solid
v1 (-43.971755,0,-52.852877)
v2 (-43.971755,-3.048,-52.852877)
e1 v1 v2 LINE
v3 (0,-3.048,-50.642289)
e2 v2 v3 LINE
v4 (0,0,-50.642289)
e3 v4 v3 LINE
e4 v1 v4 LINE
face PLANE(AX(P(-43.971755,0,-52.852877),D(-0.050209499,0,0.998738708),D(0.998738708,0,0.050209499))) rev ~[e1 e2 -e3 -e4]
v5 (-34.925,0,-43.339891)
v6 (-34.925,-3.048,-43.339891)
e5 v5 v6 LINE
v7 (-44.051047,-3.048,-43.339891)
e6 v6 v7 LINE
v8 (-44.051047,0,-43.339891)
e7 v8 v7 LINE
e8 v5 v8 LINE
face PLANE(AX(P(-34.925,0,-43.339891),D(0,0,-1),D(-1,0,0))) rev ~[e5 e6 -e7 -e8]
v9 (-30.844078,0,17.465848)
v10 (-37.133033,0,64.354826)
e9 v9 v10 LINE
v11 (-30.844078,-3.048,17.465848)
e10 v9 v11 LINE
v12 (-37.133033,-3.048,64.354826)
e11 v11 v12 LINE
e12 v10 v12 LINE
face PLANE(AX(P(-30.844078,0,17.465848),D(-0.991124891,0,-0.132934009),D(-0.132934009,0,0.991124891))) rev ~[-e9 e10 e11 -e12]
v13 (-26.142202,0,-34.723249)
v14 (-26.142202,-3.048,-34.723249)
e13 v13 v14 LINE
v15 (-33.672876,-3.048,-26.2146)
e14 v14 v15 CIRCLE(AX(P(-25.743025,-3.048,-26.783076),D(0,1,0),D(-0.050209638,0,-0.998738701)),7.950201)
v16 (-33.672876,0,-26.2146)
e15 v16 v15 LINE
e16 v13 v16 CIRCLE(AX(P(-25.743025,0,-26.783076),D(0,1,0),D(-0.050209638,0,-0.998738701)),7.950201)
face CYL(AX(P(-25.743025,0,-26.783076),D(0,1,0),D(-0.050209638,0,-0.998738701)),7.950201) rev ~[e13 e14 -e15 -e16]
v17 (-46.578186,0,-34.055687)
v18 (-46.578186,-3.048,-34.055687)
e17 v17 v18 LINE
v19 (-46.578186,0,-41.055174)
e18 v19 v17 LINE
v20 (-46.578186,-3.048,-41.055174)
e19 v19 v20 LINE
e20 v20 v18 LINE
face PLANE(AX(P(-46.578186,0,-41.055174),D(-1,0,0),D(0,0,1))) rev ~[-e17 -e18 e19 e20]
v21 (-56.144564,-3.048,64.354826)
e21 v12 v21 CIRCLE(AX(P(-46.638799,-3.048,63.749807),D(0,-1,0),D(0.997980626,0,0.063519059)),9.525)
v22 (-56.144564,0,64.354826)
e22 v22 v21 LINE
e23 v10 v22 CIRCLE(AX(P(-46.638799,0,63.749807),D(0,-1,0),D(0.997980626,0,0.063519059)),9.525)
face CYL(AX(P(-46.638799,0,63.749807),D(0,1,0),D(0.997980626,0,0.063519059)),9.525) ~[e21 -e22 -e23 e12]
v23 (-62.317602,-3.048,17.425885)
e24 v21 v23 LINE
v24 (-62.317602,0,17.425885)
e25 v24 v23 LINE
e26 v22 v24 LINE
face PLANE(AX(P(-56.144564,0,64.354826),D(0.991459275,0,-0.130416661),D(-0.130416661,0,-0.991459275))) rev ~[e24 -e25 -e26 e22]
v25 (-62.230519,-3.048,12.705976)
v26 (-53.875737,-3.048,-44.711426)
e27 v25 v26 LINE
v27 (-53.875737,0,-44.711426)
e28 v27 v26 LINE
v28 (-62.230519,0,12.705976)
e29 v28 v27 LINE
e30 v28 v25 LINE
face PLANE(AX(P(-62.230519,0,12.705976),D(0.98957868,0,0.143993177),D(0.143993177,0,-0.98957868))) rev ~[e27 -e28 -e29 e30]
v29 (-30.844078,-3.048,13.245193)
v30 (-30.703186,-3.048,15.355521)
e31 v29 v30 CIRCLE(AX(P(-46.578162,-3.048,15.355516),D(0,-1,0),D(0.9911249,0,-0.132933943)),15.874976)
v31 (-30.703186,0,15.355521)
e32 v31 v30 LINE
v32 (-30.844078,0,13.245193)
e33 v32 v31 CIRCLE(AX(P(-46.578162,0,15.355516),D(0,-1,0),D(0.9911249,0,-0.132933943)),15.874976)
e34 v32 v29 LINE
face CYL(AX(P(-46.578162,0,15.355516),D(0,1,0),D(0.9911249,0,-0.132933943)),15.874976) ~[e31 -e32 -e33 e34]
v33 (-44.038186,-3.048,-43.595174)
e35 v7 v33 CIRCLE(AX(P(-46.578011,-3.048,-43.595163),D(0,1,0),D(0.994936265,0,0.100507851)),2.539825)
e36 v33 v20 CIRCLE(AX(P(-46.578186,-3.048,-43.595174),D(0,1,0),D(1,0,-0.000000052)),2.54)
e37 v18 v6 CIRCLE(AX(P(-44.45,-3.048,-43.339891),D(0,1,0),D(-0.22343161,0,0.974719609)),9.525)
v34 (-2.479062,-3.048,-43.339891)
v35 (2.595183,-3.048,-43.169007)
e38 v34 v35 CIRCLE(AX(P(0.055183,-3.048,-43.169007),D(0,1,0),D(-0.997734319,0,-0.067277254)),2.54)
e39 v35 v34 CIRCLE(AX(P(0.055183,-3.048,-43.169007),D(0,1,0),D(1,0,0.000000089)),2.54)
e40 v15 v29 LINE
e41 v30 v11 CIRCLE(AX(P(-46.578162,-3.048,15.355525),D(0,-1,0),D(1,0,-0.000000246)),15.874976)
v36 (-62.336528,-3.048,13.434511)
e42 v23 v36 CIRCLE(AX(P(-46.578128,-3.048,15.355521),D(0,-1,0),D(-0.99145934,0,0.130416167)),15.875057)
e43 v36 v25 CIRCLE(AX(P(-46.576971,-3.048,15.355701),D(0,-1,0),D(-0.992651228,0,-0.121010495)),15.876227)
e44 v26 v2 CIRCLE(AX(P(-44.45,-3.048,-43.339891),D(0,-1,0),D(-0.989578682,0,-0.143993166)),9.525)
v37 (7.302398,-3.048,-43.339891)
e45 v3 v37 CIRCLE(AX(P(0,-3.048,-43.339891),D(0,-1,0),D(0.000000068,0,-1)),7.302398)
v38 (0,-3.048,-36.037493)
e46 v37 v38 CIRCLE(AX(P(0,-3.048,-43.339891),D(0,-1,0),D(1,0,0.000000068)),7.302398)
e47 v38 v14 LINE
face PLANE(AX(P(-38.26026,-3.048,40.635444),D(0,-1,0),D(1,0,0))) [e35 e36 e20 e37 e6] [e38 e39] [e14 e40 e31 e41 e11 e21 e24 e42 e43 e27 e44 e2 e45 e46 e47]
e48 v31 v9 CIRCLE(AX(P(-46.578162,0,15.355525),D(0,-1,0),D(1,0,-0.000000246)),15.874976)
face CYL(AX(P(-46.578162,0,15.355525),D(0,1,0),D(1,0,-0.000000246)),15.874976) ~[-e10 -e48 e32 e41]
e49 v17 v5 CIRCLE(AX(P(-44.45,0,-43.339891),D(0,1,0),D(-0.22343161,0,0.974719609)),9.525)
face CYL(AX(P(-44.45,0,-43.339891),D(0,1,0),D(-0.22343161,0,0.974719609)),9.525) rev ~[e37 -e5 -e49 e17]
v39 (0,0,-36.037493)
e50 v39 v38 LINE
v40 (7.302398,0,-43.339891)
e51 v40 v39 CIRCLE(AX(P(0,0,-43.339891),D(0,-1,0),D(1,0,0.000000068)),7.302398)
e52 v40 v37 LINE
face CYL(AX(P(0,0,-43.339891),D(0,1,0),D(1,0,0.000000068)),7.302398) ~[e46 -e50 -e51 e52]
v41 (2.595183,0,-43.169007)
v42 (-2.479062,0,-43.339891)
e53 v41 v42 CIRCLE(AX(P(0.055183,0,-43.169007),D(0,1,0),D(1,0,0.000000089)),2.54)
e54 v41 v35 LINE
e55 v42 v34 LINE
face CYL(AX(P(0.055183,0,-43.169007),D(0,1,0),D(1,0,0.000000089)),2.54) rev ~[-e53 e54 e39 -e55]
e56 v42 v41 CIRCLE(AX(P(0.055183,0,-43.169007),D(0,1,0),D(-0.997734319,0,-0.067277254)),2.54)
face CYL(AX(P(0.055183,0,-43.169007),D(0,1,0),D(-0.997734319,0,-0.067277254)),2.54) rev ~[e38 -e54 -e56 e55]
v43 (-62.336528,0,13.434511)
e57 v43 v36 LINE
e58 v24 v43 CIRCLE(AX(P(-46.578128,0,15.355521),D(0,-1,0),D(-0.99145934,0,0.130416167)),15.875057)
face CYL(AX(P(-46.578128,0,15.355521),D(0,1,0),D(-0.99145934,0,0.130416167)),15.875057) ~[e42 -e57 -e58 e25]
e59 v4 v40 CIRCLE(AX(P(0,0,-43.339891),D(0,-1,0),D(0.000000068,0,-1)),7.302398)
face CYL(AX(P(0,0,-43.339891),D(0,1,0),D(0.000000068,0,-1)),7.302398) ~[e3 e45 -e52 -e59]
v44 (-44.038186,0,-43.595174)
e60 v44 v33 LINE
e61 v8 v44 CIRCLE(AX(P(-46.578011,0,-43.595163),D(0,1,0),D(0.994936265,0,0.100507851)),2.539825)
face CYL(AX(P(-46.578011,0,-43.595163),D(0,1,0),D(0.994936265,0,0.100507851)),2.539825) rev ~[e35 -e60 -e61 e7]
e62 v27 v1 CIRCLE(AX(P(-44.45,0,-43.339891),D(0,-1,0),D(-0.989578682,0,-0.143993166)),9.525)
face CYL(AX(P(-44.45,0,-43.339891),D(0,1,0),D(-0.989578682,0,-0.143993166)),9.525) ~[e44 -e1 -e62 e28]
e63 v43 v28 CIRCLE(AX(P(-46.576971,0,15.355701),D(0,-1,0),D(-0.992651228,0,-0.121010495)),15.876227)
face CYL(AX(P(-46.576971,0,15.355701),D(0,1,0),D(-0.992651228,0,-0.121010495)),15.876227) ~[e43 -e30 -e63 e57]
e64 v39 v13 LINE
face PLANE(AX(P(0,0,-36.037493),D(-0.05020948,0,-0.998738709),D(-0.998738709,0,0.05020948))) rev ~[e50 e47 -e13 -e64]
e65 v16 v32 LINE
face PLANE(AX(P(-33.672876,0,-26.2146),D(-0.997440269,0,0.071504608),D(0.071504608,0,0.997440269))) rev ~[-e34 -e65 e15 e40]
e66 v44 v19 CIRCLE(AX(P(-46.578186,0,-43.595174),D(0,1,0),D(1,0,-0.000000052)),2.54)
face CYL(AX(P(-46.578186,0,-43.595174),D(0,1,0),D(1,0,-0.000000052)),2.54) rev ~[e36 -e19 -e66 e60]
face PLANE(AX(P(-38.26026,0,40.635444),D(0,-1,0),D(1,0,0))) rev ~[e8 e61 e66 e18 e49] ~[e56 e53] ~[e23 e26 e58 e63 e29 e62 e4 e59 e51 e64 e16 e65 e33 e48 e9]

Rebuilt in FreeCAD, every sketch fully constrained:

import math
import FreeCAD as App
import Part
import Sketcher
from FreeCAD import Vector
Q = App.Units.Quantity

doc = App.newDocument("Part")
body = doc.addObject("PartDesign::Body", "Body")

sketch1 = doc.addObject("Sketcher::SketchObject", "Sketch")
body.addObject(sketch1)
sketch1.AttachmentSupport = (doc.XZ_Plane, [""])
sketch1.MapMode = "FlatFace"
sketch1.addGeometry([
    Part.ArcOfCircle(Part.Circle(Vector(-44.45, -43.339891, 0), Vector(0, 0, 1), 9.525), math.radians(-171.72102), math.radians(-87.121998)),
    Part.LineSegment(Vector(-43.971755, -52.852877, 0), Vector(0, -50.642289, 0)),
    Part.ArcOfCircle(Part.Circle(Vector(0, -43.339891, 0), Vector(0, 0, 1), 7.302398), math.radians(-89.999996), math.radians(-0.000004)),
    Part.ArcOfCircle(Part.Circle(Vector(0, -43.339891, 0), Vector(0, 0, 1), 7.302398), math.radians(0.000004), math.radians(89.999996)),
    Part.LineSegment(Vector(0, -36.037493, 0), Vector(-26.142202, -34.723249, 0)),
    Part.ArcOfCircle(Part.Circle(Vector(-25.743025, -26.783076, 0), Vector(0, 0, 1), 7.950201), math.radians(175.899592), math.radians(267.12199)),
    Part.LineSegment(Vector(-33.672876, -26.2146, 0), Vector(-30.844078, 13.245193, 0)),
    Part.ArcOfCircle(Part.Circle(Vector(-46.578162, 15.355516, 0), Vector(0, 0, 1), 15.874976), math.radians(-7.639167), math.radians(0.000018)),
    Part.ArcOfCircle(Part.Circle(Vector(-46.578162, 15.355525, 0), Vector(0, 0, 1), 15.874976), math.radians(-0.000014), math.radians(7.639167)),
    Part.LineSegment(Vector(-30.844078, 17.465848, 0), Vector(-37.133033, 64.354826, 0)),
    Part.ArcOfCircle(Part.Circle(Vector(-46.638799, 63.749807, 0), Vector(0, 0, 1), 9.525), math.radians(3.641826), math.radians(176.358174)),
    Part.LineSegment(Vector(-56.144564, 64.354826, 0), Vector(-62.317602, 17.425885, 0)),
    Part.ArcOfCircle(Part.Circle(Vector(-46.578128, 15.355521, 0), Vector(0, 0, 1), 15.875057), math.radians(172.506358), math.radians(186.950284)),
    Part.ArcOfCircle(Part.Circle(Vector(-46.576971, 15.355701, 0), Vector(0, 0, 1), 15.876227), math.radians(-173.049575), math.radians(-170.392436)),
    Part.LineSegment(Vector(-62.230519, 12.705976, 0), Vector(-53.875737, -44.711426, 0)),
    Part.ArcOfCircle(Part.Circle(Vector(-44.45, -43.339891, 0), Vector(0, 0, 1), 9.525), math.radians(0.000001), math.radians(102.910668)),
    Part.LineSegment(Vector(-34.925, -43.339891, 0), Vector(-44.051047, -43.339891, 0)),
    Part.ArcOfCircle(Part.Circle(Vector(-46.578011, -43.595163, 0), Vector(0, 0, 1), 2.539825), math.radians(-0.00024), math.radians(5.768416)),
    Part.ArcOfCircle(Part.Circle(Vector(-46.578186, -43.595174, 0), Vector(0, 0, 1), 2.54), math.radians(90.000003), math.radians(359.999997)),
    Part.LineSegment(Vector(-46.578186, -41.055174, 0), Vector(-46.578186, -34.055687, 0)),
    Part.ArcOfCircle(Part.Circle(Vector(0.055183, -43.169007, 0), Vector(0, 0, 1), 2.54), math.radians(-0.000005), math.radians(183.857616)),
    Part.ArcOfCircle(Part.Circle(Vector(0.055183, -43.169007, 0), Vector(0, 0, 1), 2.54), math.radians(-176.142394), math.radians(0.000005)),
], False)
sketch1.addConstraint([
    Sketcher.Constraint("Coincident", 0, 2, 1, 1),
    Sketcher.Constraint("Coincident", 1, 2, 2, 1),
    Sketcher.Constraint("Coincident", 2, 2, 3, 1),
    Sketcher.Constraint("Coincident", 3, 2, 4, 1),
    Sketcher.Constraint("Coincident", 4, 2, 5, 2),
    Sketcher.Constraint("Coincident", 5, 1, 6, 1),
    Sketcher.Constraint("Coincident", 6, 2, 7, 1),
    Sketcher.Constraint("Coincident", 7, 2, 8, 1),
    Sketcher.Constraint("Coincident", 8, 2, 9, 1),
    Sketcher.Constraint("Coincident", 9, 2, 10, 1),
    Sketcher.Constraint("Coincident", 10, 2, 11, 1),
    Sketcher.Constraint("Coincident", 11, 2, 12, 1),
    Sketcher.Constraint("Coincident", 12, 2, 13, 1),
    Sketcher.Constraint("Coincident", 13, 2, 14, 1),
    Sketcher.Constraint("Coincident", 14, 2, 0, 1),
    Sketcher.Constraint("Coincident", 15, 1, 16, 1),
    Sketcher.Constraint("Coincident", 16, 2, 17, 2),
    Sketcher.Constraint("Coincident", 17, 1, 18, 2),
    Sketcher.Constraint("Coincident", 18, 1, 19, 1),
    Sketcher.Constraint("Coincident", 19, 2, 15, 2),
    Sketcher.Constraint("Coincident", 20, 1, 21, 2),
    Sketcher.Constraint("Coincident", 21, 1, 20, 2),
    Sketcher.Constraint("Horizontal", 16),
    Sketcher.Constraint("Vertical", 19),
    Sketcher.Constraint("Coincident", 3, 3, 2, 3),
    Sketcher.Constraint("Coincident", 8, 3, 7, 3),
    Sketcher.Constraint("Coincident", 15, 3, 0, 3),
    Sketcher.Constraint("PointOnObject", 2, 3, -2),
    Sketcher.Constraint("PointOnObject", 1, 2, -2),
    Sketcher.Constraint("PointOnObject", 3, 2, -2),
    Sketcher.Constraint("Radius", 18, Q("0.1 in")),
    Sketcher.Constraint("Radius", 20, Q("0.1 in")),
    Sketcher.Constraint("Radius", 21, Q("0.1 in")),
    Sketcher.Constraint("Radius", 0, Q("0.375 in")),
    Sketcher.Constraint("Radius", 5, Q("0.313 in")),
    Sketcher.Constraint("Radius", 10, Q("0.375 in")),
    Sketcher.Constraint("Radius", 15, Q("0.375 in")),
    Sketcher.Constraint("DistanceX", 0, 3, -1, 1, Q("1.75 in")),
    Sketcher.Constraint("Radius", 2, Q("7.302398 mm")),
    Sketcher.Constraint("DistanceY", 5, 3, 8, 3, Q("1.659 in")),
    Sketcher.Constraint("DistanceY", 5, 3, 12, 3, Q("1.6589999 in")),
    Sketcher.Constraint("Radius", 7, Q("15.874976 mm")),
    Sketcher.Constraint("Radius", 12, Q("15.875057 mm")),
    Sketcher.Constraint("Radius", 13, Q("15.876227 mm")),
    Sketcher.Constraint("Radius", 17, Q("2.539825 mm")),
    Sketcher.Constraint("Distance", 11, Q("47.333201 mm")),
    Sketcher.Constraint("DistanceX", 10, 3, -1, 1, Q("46.638799 mm")),
    Sketcher.Constraint("DistanceY", -1, 1, 13, 3, Q("15.355701 mm")),
    Sketcher.Constraint("DistanceY", 5, 1, -1, 1, Q("26.2146 mm")),
    Sketcher.Constraint("DistanceY", 0, 3, 10, 3, Q("107.089698 mm")),
    Sketcher.Constraint("DistanceY", 18, 3, 5, 3, Q("16.812098 mm")),
    Sketcher.Constraint("DistanceY", 0, 2, 5, 3, Q("26.069801 mm")),
    Sketcher.Constraint("DistanceX", 0, 3, 4, 2, Q("18.307798 mm")),
    Sketcher.Constraint("DistanceX", 5, 1, 6, 2, Q("2.828798 mm")),
    Sketcher.Constraint("DistanceY", 8, 3, 10, 2, Q("48.999301 mm")),
    Sketcher.Constraint("DistanceX", 12, 2, 12, 3, Q("15.7584 mm")),
    Sketcher.Constraint("Distance", 6, Q("39.561059 mm")),
    Sketcher.Constraint("Distance", 9, Q("47.308849 mm")),
    Sketcher.Constraint("Distance", 14, Q("58.022069 mm")),
    Sketcher.Constraint("DistanceX", 16, 2, 16, 1, Q("9.126047 mm")),
    Sketcher.Constraint("DistanceY", 19, 1, 19, 2, Q("6.999487 mm")),
    Sketcher.Constraint("DistanceY", 0, 3, -1, 1, Q("43.339891 mm")),
    Sketcher.Constraint("DistanceY", 2, 3, -1, 1, Q("43.339891 mm")),
    Sketcher.Constraint("DistanceX", 7, 3, -1, 1, Q("46.578162 mm")),
    Sketcher.Constraint("DistanceX", 12, 3, -1, 1, Q("46.578128 mm")),
    Sketcher.Constraint("DistanceY", -1, 1, 12, 3, Q("15.355521 mm")),
    Sketcher.Constraint("DistanceX", 17, 3, -1, 1, Q("46.578011 mm")),
    Sketcher.Constraint("DistanceY", 2, 2, -1, 1, Q("43.339891 mm")),
    Sketcher.Constraint("DistanceY", -1, 1, 7, 2, Q("15.355521 mm")),
    Sketcher.Constraint("DistanceX", 8, 2, -1, 1, Q("30.844078 mm")),
    Sketcher.Constraint("DistanceX", 13, 2, -1, 1, Q("62.230519 mm")),
    Sketcher.Constraint("DistanceY", 15, 1, -1, 1, Q("43.339891 mm")),
    Sketcher.Constraint("DistanceY", 21, 1, -1, 1, Q("43.339891 mm")),
    Sketcher.Constraint("DistanceX", 5, 3, 20, 3, Q("25.798208 mm")),
    Sketcher.Constraint("DistanceY", 20, 3, 5, 3, Q("16.385931 mm")),
    Sketcher.Constraint("DistanceY", 17, 1, -1, 1, Q("43.595174 mm")),
    Sketcher.Constraint("DistanceY", 20, 1, -1, 1, Q("43.169007 mm")),
])
pad1 = doc.addObject("PartDesign::Pad", "Pad")
body.addObject(pad1)
pad1.Profile = sketch1
pad1.Length = Q("0.12 in")

doc.recompute()
